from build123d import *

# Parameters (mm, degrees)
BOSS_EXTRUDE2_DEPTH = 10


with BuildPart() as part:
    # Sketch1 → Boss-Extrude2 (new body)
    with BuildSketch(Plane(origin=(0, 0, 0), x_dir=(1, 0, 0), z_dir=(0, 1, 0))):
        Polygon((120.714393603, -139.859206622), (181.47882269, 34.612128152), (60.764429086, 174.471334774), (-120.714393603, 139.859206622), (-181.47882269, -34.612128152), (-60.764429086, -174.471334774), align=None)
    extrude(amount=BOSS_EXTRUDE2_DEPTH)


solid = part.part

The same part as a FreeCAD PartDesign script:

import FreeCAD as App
import Part
import Sketcher
from FreeCAD import Vector

doc = App.newDocument("Part")
body = doc.addObject("PartDesign::Body", "Body")

# Sketch on XZ plane
sketch1 = body.newObject("Sketcher::SketchObject", "Sketch")
sketch1.AttachmentSupport = (doc.getObject("XZ_Plane"), [""])
sketch1.MapMode = "FlatFace"
sketch1.addGeometry(Part.LineSegment(Vector(121, 140, 0), Vector(181, -35, 0)), False)
sketch1.addGeometry(Part.LineSegment(Vector(181, -35, 0), Vector(61, -174, 0)), False)
sketch1.addGeometry(Part.LineSegment(Vector(61, -174, 0), Vector(-121, -140, 0)), False)
sketch1.addGeometry(Part.LineSegment(Vector(-121, -140, 0), Vector(-181, 35, 0)), False)
sketch1.addGeometry(Part.LineSegment(Vector(-181, 35, 0), Vector(-61, 174, 0)), False)
sketch1.addGeometry(Part.LineSegment(Vector(-61, 174, 0), Vector(121, 140, 0)), False)
sketch1.addConstraint(Sketcher.Constraint("Coincident", 0, 2, 1, 1))
sketch1.addConstraint(Sketcher.Constraint("Coincident", 1, 2, 2, 1))
sketch1.addConstraint(Sketcher.Constraint("Coincident", 2, 2, 3, 1))
sketch1.addConstraint(Sketcher.Constraint("Coincident", 3, 2, 4, 1))
sketch1.addConstraint(Sketcher.Constraint("Coincident", 4, 2, 5, 1))
sketch1.addConstraint(Sketcher.Constraint("Coincident", 5, 2, 0, 1))
sketch1.addConstraint(Sketcher.Constraint("Symmetric", 0, 2, 3, 2, -1, 1))
sketch1.addConstraint(Sketcher.Constraint("Symmetric", 1, 2, 4, 2, -1, 1))
sketch1.addConstraint(Sketcher.Constraint("Symmetric", 2, 2, 5, 2, -1, 1))
sketch1.addConstraint(Sketcher.Constraint("Equal", 0, 1))
sketch1.addConstraint(Sketcher.Constraint("Equal", 1, 2))
sketch1.addConstraint(Sketcher.Constraint("Distance", 0, 184.75))
sketch1.addConstraint(Sketcher.Constraint("DistanceY", 0, 2, -1, 1, 34.612128))
sketch1.addConstraint(Sketcher.Constraint("DistanceX", -1, 1, 1, 2, 60.764429))
sketch1.addConstraint(Sketcher.Constraint("DistanceY", 1, 2, 2, 2, 34.612128))
pad1 = body.newObject("PartDesign::Pad", "Pad")
pad1.Profile = sketch1
pad1.Length = 10
pad1.Reversed = True

doc.recompute()
